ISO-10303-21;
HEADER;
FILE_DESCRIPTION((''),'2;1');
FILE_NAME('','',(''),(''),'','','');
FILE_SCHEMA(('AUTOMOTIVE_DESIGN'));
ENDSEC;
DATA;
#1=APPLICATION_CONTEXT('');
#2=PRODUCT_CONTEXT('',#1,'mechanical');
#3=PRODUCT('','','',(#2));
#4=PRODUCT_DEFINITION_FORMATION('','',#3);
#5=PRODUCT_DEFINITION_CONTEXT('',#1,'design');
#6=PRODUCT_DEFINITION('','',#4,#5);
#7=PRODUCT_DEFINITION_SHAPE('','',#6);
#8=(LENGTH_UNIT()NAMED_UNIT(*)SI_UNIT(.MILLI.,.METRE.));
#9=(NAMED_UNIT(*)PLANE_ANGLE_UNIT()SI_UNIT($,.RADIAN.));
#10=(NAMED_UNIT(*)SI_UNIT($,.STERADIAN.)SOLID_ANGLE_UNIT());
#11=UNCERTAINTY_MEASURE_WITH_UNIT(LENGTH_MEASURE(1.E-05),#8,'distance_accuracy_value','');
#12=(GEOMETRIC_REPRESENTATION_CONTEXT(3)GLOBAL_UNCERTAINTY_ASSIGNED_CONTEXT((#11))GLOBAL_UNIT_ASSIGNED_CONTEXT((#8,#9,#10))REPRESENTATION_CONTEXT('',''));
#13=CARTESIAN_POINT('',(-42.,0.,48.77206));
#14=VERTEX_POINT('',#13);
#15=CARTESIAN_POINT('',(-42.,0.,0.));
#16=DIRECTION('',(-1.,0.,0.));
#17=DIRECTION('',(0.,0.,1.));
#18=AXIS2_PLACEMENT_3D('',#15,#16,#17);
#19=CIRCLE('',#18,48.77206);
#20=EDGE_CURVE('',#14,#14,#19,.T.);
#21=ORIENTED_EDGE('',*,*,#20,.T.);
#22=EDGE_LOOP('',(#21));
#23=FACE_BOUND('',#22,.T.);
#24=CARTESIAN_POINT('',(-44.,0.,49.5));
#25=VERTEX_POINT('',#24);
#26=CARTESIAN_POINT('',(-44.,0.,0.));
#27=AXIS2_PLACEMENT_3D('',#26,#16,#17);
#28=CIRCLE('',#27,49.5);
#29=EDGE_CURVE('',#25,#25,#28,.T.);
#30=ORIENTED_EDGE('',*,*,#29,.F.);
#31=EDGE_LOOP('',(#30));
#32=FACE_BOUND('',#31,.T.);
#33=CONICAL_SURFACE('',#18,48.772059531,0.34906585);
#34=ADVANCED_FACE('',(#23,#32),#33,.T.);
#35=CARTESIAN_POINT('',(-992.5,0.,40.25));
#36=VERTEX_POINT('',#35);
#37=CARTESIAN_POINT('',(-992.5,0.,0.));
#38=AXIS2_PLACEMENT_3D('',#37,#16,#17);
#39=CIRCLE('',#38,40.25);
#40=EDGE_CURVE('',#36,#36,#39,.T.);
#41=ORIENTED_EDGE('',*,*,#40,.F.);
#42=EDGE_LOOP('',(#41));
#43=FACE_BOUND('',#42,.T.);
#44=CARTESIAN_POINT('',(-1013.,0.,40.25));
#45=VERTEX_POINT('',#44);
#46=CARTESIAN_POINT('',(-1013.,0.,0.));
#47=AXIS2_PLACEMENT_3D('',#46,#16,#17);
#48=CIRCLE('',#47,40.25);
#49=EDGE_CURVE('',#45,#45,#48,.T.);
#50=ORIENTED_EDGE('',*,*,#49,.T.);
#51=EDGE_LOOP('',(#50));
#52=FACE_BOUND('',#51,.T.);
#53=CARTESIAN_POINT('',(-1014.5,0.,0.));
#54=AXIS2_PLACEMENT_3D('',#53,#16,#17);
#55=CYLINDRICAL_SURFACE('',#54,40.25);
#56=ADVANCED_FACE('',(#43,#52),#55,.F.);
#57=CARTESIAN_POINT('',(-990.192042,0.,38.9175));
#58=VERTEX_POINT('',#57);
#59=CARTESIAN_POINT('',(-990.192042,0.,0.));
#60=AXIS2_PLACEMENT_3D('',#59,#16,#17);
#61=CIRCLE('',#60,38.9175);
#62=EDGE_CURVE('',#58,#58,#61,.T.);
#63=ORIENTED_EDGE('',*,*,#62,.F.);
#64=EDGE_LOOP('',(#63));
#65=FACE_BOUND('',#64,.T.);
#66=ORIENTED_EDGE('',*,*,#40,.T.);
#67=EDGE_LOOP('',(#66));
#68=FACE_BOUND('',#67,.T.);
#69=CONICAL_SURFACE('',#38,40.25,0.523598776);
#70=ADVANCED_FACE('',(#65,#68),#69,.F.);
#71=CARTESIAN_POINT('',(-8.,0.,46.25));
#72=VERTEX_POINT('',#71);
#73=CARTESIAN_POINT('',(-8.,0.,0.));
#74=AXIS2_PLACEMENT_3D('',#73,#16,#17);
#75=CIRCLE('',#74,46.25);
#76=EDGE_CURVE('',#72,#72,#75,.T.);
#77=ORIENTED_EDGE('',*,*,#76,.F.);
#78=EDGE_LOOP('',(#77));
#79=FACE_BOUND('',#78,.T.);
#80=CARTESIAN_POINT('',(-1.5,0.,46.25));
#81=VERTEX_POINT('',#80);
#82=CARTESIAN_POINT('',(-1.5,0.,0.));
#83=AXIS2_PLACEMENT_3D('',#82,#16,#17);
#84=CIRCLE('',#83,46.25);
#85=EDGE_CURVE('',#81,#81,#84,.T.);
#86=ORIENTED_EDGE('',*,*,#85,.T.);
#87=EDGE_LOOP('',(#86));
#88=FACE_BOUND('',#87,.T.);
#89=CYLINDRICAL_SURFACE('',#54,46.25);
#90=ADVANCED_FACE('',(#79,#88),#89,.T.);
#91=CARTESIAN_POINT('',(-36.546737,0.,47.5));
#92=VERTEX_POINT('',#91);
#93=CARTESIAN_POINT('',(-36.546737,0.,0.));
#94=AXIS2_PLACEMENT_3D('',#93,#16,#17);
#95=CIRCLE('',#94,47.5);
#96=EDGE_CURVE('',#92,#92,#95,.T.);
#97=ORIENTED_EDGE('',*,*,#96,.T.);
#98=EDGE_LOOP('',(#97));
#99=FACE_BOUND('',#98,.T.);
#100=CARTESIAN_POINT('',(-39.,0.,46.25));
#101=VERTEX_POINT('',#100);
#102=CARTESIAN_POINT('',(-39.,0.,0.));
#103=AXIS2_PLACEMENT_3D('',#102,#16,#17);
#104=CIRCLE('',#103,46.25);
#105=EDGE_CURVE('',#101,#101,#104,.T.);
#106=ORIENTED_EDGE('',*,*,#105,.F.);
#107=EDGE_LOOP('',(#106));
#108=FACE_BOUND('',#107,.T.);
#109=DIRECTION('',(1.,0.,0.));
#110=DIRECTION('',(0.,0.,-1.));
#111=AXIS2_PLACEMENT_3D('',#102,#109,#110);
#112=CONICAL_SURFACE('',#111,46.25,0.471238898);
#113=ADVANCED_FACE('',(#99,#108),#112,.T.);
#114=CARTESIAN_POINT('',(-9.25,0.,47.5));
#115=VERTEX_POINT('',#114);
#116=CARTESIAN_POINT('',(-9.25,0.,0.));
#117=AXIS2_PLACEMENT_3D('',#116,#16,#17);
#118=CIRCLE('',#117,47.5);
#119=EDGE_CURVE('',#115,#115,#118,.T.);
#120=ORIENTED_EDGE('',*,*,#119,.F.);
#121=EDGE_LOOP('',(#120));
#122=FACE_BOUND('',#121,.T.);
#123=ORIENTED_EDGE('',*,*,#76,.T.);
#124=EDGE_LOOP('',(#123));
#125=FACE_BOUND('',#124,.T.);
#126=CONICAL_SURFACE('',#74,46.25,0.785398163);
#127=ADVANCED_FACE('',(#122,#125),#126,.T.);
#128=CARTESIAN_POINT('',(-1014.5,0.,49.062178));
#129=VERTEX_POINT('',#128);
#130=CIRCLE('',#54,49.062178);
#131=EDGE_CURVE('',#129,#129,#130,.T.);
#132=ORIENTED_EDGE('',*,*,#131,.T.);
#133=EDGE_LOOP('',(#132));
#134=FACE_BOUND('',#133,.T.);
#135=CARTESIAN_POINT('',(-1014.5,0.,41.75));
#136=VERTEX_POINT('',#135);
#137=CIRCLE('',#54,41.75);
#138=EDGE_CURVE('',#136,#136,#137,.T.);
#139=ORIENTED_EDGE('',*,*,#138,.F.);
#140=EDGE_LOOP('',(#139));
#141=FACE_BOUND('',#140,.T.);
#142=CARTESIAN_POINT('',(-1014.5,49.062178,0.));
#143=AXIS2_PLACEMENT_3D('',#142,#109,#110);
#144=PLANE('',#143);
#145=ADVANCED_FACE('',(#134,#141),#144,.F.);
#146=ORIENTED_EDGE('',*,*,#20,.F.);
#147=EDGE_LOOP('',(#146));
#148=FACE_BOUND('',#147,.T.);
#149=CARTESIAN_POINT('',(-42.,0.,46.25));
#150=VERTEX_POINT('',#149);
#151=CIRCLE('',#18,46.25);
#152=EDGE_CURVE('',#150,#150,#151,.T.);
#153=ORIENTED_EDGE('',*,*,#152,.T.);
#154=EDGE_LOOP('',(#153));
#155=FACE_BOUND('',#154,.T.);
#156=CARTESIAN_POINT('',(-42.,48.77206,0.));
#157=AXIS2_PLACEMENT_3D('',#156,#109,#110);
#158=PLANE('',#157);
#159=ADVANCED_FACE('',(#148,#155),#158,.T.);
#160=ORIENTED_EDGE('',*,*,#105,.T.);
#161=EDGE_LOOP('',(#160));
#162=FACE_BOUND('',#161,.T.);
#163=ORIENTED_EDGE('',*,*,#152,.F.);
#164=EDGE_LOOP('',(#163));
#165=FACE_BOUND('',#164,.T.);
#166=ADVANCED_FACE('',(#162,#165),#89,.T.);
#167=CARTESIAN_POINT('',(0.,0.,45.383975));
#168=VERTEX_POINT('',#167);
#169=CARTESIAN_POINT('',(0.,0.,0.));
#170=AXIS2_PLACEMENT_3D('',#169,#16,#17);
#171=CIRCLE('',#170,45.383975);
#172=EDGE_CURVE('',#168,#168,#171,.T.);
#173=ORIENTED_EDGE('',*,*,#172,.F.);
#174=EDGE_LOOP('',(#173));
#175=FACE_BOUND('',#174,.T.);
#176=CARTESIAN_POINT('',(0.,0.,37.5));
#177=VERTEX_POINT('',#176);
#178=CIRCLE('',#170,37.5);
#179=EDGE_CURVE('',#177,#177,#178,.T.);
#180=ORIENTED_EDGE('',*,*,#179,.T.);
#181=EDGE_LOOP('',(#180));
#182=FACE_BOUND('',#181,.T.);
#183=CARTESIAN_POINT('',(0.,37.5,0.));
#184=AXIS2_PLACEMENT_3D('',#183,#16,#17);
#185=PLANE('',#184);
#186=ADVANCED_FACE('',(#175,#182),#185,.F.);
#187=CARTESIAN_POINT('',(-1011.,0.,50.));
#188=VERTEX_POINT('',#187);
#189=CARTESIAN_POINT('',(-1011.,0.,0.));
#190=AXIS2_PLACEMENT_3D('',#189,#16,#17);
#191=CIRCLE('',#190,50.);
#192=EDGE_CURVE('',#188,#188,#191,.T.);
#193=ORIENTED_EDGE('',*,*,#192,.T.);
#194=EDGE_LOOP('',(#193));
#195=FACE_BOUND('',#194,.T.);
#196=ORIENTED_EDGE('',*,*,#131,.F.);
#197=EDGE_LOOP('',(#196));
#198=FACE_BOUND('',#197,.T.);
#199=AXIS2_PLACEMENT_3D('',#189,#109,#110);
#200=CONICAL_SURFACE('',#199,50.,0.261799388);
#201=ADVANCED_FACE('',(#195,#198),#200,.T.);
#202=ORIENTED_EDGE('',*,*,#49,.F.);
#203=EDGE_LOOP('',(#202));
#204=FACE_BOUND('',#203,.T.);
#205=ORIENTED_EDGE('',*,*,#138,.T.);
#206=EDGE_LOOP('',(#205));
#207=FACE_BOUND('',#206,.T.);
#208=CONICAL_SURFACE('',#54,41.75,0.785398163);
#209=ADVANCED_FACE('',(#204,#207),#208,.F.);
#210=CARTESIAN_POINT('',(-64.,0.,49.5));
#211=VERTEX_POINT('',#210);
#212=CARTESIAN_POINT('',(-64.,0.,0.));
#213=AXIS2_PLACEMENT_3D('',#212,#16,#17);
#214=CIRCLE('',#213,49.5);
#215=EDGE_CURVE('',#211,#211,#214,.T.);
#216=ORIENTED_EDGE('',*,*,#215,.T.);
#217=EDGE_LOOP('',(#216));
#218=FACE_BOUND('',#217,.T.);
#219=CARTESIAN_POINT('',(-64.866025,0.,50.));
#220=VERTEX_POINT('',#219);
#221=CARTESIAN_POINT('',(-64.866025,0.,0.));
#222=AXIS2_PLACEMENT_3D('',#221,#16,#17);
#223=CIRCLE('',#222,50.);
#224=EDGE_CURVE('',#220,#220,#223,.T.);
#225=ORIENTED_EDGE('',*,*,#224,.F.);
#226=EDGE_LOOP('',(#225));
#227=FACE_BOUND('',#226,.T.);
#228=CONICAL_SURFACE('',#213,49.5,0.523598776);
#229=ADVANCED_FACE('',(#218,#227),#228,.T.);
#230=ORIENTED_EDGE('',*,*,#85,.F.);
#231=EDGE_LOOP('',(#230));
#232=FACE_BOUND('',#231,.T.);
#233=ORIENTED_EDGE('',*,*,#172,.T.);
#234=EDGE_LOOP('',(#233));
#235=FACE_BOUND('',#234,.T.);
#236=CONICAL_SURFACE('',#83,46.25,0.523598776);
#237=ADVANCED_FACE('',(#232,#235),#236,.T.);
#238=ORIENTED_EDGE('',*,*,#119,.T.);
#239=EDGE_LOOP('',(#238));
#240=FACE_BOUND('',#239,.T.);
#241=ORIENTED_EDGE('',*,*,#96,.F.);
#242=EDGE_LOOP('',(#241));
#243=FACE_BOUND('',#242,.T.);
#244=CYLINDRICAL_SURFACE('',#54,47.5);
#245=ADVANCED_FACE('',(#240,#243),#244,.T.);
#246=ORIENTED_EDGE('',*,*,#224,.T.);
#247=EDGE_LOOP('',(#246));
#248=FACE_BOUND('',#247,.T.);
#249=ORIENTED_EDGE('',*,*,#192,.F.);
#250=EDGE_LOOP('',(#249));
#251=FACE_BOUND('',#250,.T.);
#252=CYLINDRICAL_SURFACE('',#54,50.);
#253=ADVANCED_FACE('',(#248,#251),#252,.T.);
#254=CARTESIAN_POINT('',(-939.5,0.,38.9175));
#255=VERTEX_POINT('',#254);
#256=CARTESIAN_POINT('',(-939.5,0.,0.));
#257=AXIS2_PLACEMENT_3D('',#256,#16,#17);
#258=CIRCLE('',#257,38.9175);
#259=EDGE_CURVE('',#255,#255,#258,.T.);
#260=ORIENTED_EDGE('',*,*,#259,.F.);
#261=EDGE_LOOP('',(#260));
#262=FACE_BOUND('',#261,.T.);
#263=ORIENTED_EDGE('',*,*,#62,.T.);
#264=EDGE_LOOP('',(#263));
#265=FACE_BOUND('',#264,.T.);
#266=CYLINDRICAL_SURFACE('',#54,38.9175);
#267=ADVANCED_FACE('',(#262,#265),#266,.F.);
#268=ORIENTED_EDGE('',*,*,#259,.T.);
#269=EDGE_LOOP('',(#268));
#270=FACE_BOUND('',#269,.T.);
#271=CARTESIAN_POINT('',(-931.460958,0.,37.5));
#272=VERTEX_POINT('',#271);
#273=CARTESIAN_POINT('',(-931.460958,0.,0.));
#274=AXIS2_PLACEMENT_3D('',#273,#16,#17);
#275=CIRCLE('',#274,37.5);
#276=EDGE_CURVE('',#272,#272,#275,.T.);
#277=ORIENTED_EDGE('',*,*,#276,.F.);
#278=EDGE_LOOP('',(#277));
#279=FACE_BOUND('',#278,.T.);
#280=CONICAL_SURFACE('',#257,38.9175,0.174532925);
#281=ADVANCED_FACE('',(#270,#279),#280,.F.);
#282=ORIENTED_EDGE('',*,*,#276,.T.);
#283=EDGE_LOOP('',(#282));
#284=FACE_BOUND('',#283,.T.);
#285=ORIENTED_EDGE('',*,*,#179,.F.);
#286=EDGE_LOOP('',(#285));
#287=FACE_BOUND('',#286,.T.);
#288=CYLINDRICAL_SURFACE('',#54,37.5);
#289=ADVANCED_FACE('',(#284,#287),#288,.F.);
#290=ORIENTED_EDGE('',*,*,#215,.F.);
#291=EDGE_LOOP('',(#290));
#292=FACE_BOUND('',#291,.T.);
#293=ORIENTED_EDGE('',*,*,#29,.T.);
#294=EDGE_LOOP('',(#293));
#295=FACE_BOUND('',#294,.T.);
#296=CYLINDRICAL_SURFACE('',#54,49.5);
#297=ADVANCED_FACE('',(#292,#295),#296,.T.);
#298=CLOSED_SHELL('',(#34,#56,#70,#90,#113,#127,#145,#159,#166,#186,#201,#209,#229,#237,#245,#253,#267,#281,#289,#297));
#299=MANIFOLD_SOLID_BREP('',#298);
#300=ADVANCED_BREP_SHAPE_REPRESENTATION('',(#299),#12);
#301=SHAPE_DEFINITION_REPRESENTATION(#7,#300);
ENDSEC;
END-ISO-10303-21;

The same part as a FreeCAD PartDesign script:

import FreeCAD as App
import Part
import Sketcher
Q = App.Units.Quantity


def add_polygon(sketch, points):
    """Adds a closed chain of lines whose ends are joined by coincident constraints."""
    first, n = sketch.GeometryCount, len(points)
    for a, b in zip(points, points[1:] + points[:1]):
        sketch.addGeometry(Part.LineSegment(App.Vector(*a, 0), App.Vector(*b, 0)), False)
    for i in range(n):
        sketch.addConstraint(Sketcher.Constraint("Coincident", first + i, 2, first + (i + 1) % n, 1))

doc = App.newDocument("Part")
body = doc.addObject("PartDesign::Body", "Body")

# Sketch on XY plane
sketch1 = body.newObject("Sketcher::SketchObject", "Sketch")
sketch1.AttachmentSupport = (doc.getObject("XY_Plane"), [""])
sketch1.MapMode = "FlatFace"
add_polygon(sketch1, [(0, 37.5), (0, 45.4), (-1.5, 46.2), (-8, 46.2), (-9.2, 47.5), (-36.5, 47.5), (-39, 46.2), (-42, 46.2), (-42, 48.8), (-44, 49.5), (-64, 49.5), (-64.9, 50), (-1011, 50), (-1014.5, 49.1), (-1014.5, 41.8), (-1013, 40.2), (-992.5, 40.2), (-990.2, 38.9), (-939.5, 38.9), (-931.5, 37.5)])  # lines 0-19
sketch1.addConstraint([
    Sketcher.Constraint("Vertical", 0),
    Sketcher.Constraint("Horizontal", 2),
    Sketcher.Constraint("Horizontal", 4),
    Sketcher.Constraint("Horizontal", 6),
    Sketcher.Constraint("Vertical", 7),
    Sketcher.Constraint("Horizontal", 9),
    Sketcher.Constraint("Horizontal", 11),
    Sketcher.Constraint("Vertical", 13),
    Sketcher.Constraint("Horizontal", 15),
    Sketcher.Constraint("Horizontal", 17),
    Sketcher.Constraint("Horizontal", 19),
    Sketcher.Constraint("PointOnObject", 0, 2, -2),
    Sketcher.Constraint("Parallel", 1, 10),
    Sketcher.Constraint("Parallel", 3, 14),
    Sketcher.Constraint("Parallel", 10, 16),
    Sketcher.Constraint("Horizontal", 2, 2, 5, 2),
    Sketcher.Constraint("DistanceX", 6, 2, 6, 1, 3.0),
    Sketcher.Constraint("DistanceX", 9, 2, 9, 1, 20.0),
    Sketcher.Constraint("Angle", 1, Q("150 deg")),
    Sketcher.Constraint("Angle", 3, Q("135 deg")),
    Sketcher.Constraint("Angle", 5, Q("-153 deg")),
    Sketcher.Constraint("Angle", 8, Q("160 deg")),
    Sketcher.Constraint("Angle", 12, Q("-165 deg")),
    Sketcher.Constraint("Angle", 18, Q("-10 deg")),
    Sketcher.Constraint("Distance", 10, 1.0),
    Sketcher.Constraint("DistanceX", 2, 2, 2, 1, 6.5),
    Sketcher.Constraint("DistanceX", 15, 1, 15, 2, 20.5),
    Sketcher.Constraint("DistanceX", 2, 2, -1, 1, 8.0),
    Sketcher.Constraint("DistanceX", 5, 2, -1, 1, 39.0),
    Sketcher.Constraint("DistanceX", 8, 2, -1, 1, 44.0),
    Sketcher.Constraint("DistanceY", -1, 1, 10, 2, 50.0),
    Sketcher.Constraint("DistanceX", 11, 2, -1, 1, 1011.0),
    Sketcher.Constraint("DistanceX", 14, 2, -1, 1, 1013.0),
    Sketcher.Constraint("DistanceY", 4, 2, 8, 2, 2.0),
    Sketcher.Constraint("DistanceX", 13, 2, 15, 2, 22.0),
    Sketcher.Constraint("DistanceX", 15, 2, 17, 2, 53.0),
    Sketcher.Constraint("DistanceY", 19, 2, 3, 2, 10.0),
    Sketcher.Constraint("DistanceY", -1, 1, 1, 2, 46.25),
    Sketcher.Constraint("DistanceY", -1, 1, 13, 2, 41.75),
    Sketcher.Constraint("Distance", 16, 2.665),
])
revolution = body.newObject("PartDesign::Revolution", "Revolution")
revolution.Profile = sketch1
revolution.ReferenceAxis = (sketch1, ["H_Axis"])
revolution.Angle = 360

doc.recompute()
